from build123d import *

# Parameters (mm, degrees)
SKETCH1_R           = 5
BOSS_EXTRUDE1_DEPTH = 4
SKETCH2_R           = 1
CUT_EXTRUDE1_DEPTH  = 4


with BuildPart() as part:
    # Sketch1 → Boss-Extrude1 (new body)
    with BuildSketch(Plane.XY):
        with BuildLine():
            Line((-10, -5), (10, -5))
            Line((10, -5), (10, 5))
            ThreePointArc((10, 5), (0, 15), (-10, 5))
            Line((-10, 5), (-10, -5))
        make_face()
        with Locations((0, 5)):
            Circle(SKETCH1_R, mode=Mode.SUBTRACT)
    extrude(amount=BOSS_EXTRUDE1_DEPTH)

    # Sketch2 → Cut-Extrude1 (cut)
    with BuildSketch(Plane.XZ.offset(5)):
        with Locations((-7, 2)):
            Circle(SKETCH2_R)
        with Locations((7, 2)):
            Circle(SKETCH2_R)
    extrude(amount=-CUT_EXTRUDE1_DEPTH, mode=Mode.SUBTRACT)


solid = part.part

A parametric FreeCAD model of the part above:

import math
import FreeCAD as App
import Part
import Sketcher

V = App.Vector
Q = App.Units.Quantity

doc = App.newDocument("Part")
params = doc.addObject("Spreadsheet::Sheet", "Params")
for row, (alias, value) in enumerate([
    ("sketch1_diameter", "10 mm"),
    ("sketch1_radius", "10 mm"),
    ("sketch1_height", "10 mm"),
    ("pad1_length", "4 mm"),
    ("sketch2_diameter", "2 mm"),
    ("pocket1_length", "4 mm"),
], start=1):
    params.set(f"A{row}", alias)
    params.set(f"B{row}", "=" + value)
    params.setAlias(f"B{row}", alias)

body = doc.addObject("PartDesign::Body", "Body")

sketch1 = body.newObject("Sketcher::SketchObject", "Sketch")
sketch1.AttachmentSupport = (doc.getObject("XY_Plane"), [""])
sketch1.MapMode = "FlatFace"
sketch1.addGeometry([
    Part.LineSegment(V(-10, -5, 0), V(10, -5, 0)),
    Part.LineSegment(V(10, -5, 0), V(10, 5, 0)),
    Part.ArcOfCircle(Part.Circle(V(0, 5, 0), V(0, 0, 1), 10), math.radians(0), math.radians(180)),
    Part.LineSegment(V(-10, 5, 0), V(-10, -5, 0)),
    Part.Circle(V(0, 5, 0), V(0, 0, 1), 5),
], False)
sketch1.addConstraint([
    Sketcher.Constraint("Coincident", 0, 2, 1, 1),
    Sketcher.Constraint("Tangent", 1, 2, 2, 1),
    Sketcher.Constraint("Tangent", 2, 2, 3, 1),
    Sketcher.Constraint("Coincident", 3, 2, 0, 1),
    Sketcher.Constraint("Horizontal", 0),
    Sketcher.Constraint("Vertical", 1),
    Sketcher.Constraint("Vertical", 3),
    Sketcher.Constraint("Coincident", 4, 3, 2, 3),
    Sketcher.Constraint("Symmetric", 0, 2, 2, 2, -1, 1),
    Sketcher.Constraint("Diameter", 4, Q("10 mm")),
    Sketcher.Constraint("Radius", 2, Q("10 mm")),
    Sketcher.Constraint("DistanceY", 1, 1, 1, 2, Q("10 mm")),
])
sketch1.setExpression("Constraints[9]", "Params.sketch1_diameter")
sketch1.setExpression("Constraints[10]", "Params.sketch1_radius")
sketch1.setExpression("Constraints[11]", "Params.sketch1_height")
pad1 = body.newObject("PartDesign::Pad", "Pad")
pad1.Profile = sketch1
pad1.setExpression("Length", "Params.pad1_length")

sketch2 = body.newObject("Sketcher::SketchObject", "Sketch001")
sketch2.AttachmentSupport = (doc.getObject("XZ_Plane"), [""])
sketch2.MapMode = "FlatFace"
sketch2.AttachmentOffset = App.Placement(V(0, 0, 5), App.Rotation())
sketch2.addGeometry([
    Part.Circle(V(-7, 2, 0), V(0, 0, 1), 1),
    Part.Circle(V(7, 2, 0), V(0, 0, 1), 1),
], False)
sketch2.addConstraint([
    Sketcher.Constraint("Equal", 0, 1),
    Sketcher.Constraint("Symmetric", 0, 3, 1, 3, -2),
    Sketcher.Constraint("Diameter", 0, Q("2 mm")),
    Sketcher.Constraint("DistanceX", 0, 3, -1, 1, Q("7 mm")),
    Sketcher.Constraint("DistanceY", -1, 1, 0, 3, Q("2 mm")),
])
sketch2.setExpression("Constraints[2]", "Params.sketch2_diameter")
pocket1 = body.newObject("PartDesign::Pocket", "Pocket")
pocket1.Profile = sketch2
pocket1.setExpression("Length", "Params.pocket1_length")

doc.recompute()
